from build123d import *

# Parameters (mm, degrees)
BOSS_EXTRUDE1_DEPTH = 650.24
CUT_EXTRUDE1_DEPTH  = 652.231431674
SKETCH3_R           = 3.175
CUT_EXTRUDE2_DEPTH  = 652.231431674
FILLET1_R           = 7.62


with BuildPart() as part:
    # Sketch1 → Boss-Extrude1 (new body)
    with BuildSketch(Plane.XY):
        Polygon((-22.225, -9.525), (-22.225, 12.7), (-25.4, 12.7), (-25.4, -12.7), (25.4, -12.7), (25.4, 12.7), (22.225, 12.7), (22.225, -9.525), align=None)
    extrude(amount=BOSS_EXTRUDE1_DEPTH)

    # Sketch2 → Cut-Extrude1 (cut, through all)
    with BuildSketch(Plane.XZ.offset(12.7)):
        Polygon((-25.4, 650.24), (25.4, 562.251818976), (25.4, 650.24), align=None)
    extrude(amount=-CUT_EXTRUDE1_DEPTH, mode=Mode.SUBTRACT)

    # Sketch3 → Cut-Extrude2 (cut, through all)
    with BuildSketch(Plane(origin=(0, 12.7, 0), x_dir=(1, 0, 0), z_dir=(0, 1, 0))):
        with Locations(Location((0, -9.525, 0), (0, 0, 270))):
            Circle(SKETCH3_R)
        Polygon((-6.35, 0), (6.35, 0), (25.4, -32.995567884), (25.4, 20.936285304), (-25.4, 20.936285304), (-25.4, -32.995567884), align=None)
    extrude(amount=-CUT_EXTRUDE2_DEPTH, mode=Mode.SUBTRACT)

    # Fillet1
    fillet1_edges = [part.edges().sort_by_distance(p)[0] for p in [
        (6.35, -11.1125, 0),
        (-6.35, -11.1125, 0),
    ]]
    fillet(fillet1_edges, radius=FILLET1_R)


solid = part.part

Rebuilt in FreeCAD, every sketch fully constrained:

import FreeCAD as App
import Part
import Sketcher

V = App.Vector
Q = App.Units.Quantity


def edges_at(feature, points):
    """Names of the edges that pass closest to the given points."""
    edges = feature.Shape.Edges
    near = lambda p: min(range(len(edges)), key=lambda i: edges[i].distToShape(Part.Vertex(*p))[0])
    return sorted({f"Edge{near(p) + 1}" for p in points})

doc = App.newDocument("Part")
body = doc.addObject("PartDesign::Body", "Body")

sketch1 = body.newObject("Sketcher::SketchObject", "Sketch")
sketch1.AttachmentSupport = (doc.getObject("XY_Plane"), [""])
sketch1.MapMode = "FlatFace"
sketch1.addGeometry([
    Part.LineSegment(V(-22.2, -9.5, 0), V(-22.2, 12.7, 0)),
    Part.LineSegment(V(-22.2, 12.7, 0), V(-25.4, 12.7, 0)),
    Part.LineSegment(V(-25.4, 12.7, 0), V(-25.4, -12.7, 0)),
    Part.LineSegment(V(-25.4, -12.7, 0), V(25.4, -12.7, 0)),
    Part.LineSegment(V(25.4, -12.7, 0), V(25.4, 12.7, 0)),
    Part.LineSegment(V(25.4, 12.7, 0), V(22.2, 12.7, 0)),
    Part.LineSegment(V(22.2, 12.7, 0), V(22.2, -9.5, 0)),
    Part.LineSegment(V(22.2, -9.5, 0), V(-22.2, -9.5, 0)),
], False)
sketch1.addConstraint([
    Sketcher.Constraint("Coincident", 0, 2, 1, 1),
    Sketcher.Constraint("Coincident", 1, 2, 2, 1),
    Sketcher.Constraint("Coincident", 2, 2, 3, 1),
    Sketcher.Constraint("Coincident", 3, 2, 4, 1),
    Sketcher.Constraint("Coincident", 4, 2, 5, 1),
    Sketcher.Constraint("Coincident", 5, 2, 6, 1),
    Sketcher.Constraint("Coincident", 6, 2, 7, 1),
    Sketcher.Constraint("Coincident", 7, 2, 0, 1),
    Sketcher.Constraint("Vertical", 0),
    Sketcher.Constraint("Horizontal", 1),
    Sketcher.Constraint("Vertical", 2),
    Sketcher.Constraint("Horizontal", 3),
    Sketcher.Constraint("Vertical", 4),
    Sketcher.Constraint("Horizontal", 5),
    Sketcher.Constraint("Vertical", 6),
    Sketcher.Constraint("Horizontal", 7),
    Sketcher.Constraint("Symmetric", 1, 2, 3, 2, -1, 1),
    Sketcher.Constraint("Symmetric", 0, 2, 5, 2, -2),
    Sketcher.Constraint("DistanceX", 3, 1, 3, 2, Q("2 in")),
    Sketcher.Constraint("DistanceY", 2, 2, 2, 1, Q("1 in")),
    Sketcher.Constraint("DistanceX", 7, 2, 7, 1, Q("1.75 in")),
    Sketcher.Constraint("DistanceY", 0, 1, 0, 2, Q("0.875 in")),
])
pad1 = body.newObject("PartDesign::Pad", "Pad")
pad1.Profile = sketch1
pad1.Length = Q("25.6 in")

sketch2 = body.newObject("Sketcher::SketchObject", "Sketch001")
sketch2.AttachmentSupport = (doc.getObject("XZ_Plane"), [""])
sketch2.MapMode = "FlatFace"
sketch2.AttachmentOffset = App.Placement(V(0, 0, 0.5 * 25.4), App.Rotation())
sketch2.addGeometry([
    Part.LineSegment(V(-25, 650, 0), V(25, 562, 0)),
    Part.LineSegment(V(25, 562, 0), V(25, 650, 0)),
    Part.LineSegment(V(25, 650, 0), V(-25, 650, 0)),
], False)
sketch2.addConstraint([
    Sketcher.Constraint("Coincident", 0, 2, 1, 1),
    Sketcher.Constraint("Coincident", 1, 2, 2, 1),
    Sketcher.Constraint("Coincident", 2, 2, 0, 1),
    Sketcher.Constraint("Vertical", 1),
    Sketcher.Constraint("Horizontal", 2),
    Sketcher.Constraint("DistanceX", 2, 2, 2, 1, Q("2 in")),
    Sketcher.Constraint("Distance", 0, Q("4 in")),
    Sketcher.Constraint("DistanceX", -1, 1, 0, 2, Q("1 in")),
    Sketcher.Constraint("DistanceY", -1, 1, 1, 2, Q("25.6 in")),
])
pocket1 = body.newObject("PartDesign::Pocket", "Pocket")
pocket1.Profile = sketch2
pocket1.Type = "ThroughAll"

sketch3 = body.newObject("Sketcher::SketchObject", "Sketch002")
sketch3.AttachmentSupport = (doc.getObject("XZ_Plane"), [""])
sketch3.MapMode = "FlatFace"
sketch3.AttachmentOffset = App.Placement(V(0, 0, -0.5 * 25.4), App.Rotation())
sketch3.addGeometry([
    Part.Circle(V(0, 9.5, 0), V(0, 0, 1), 3.2),
    Part.LineSegment(V(-6.3, 0, 0), V(6.3, 0, 0)),
    Part.LineSegment(V(6.3, 0, 0), V(25.4, 33, 0)),
    Part.LineSegment(V(25.4, 33, 0), V(25.4, -20.9, 0)),
    Part.LineSegment(V(25.4, -20.9, 0), V(-25.4, -20.9, 0)),
    Part.LineSegment(V(-25.4, -20.9, 0), V(-25.4, 33, 0)),
    Part.LineSegment(V(-25.4, 33, 0), V(-6.3, 0, 0)),
], False)
sketch3.addConstraint([
    Sketcher.Constraint("Coincident", 1, 2, 2, 1),
    Sketcher.Constraint("Coincident", 2, 2, 3, 1),
    Sketcher.Constraint("Coincident", 3, 2, 4, 1),
    Sketcher.Constraint("Coincident", 4, 2, 5, 1),
    Sketcher.Constraint("Coincident", 5, 2, 6, 1),
    Sketcher.Constraint("Coincident", 6, 2, 1, 1),
    Sketcher.Constraint("Horizontal", 1),
    Sketcher.Constraint("Vertical", 3),
    Sketcher.Constraint("Horizontal", 4),
    Sketcher.Constraint("Vertical", 5),
    Sketcher.Constraint("Symmetric", 1, 2, 6, 2, -1, 1),
    Sketcher.Constraint("Symmetric", 2, 2, 5, 2, -2),
    Sketcher.Constraint("PointOnObject", 0, 3, -2),
    Sketcher.Constraint("Diameter", 0, Q("0.25 in")),
    Sketcher.Constraint("DistanceX", 4, 2, 4, 1, Q("2 in")),
    Sketcher.Constraint("DistanceX", 1, 1, 1, 2, Q("0.5 in")),
    Sketcher.Constraint("Angle", 2, Q("60 deg")),
    Sketcher.Constraint("DistanceY", -1, 1, 0, 3, Q("0.375 in")),
    Sketcher.Constraint("DistanceY", 3, 2, 3, 1, 53.931853),
])
pocket2 = body.newObject("PartDesign::Pocket", "Pocket001")
pocket2.Profile = sketch3
pocket2.Type = "ThroughAll"
pocket2.Reversed = True
doc.recompute()

fillet = body.newObject("PartDesign::Fillet", "Fillet")
fillet.Base = (pocket2, edges_at(pocket2, [(6.35, -11.113, 0), (-6.35, -11.113, 0)]))
fillet.Radius = Q("0.3 in")

doc.recompute()
